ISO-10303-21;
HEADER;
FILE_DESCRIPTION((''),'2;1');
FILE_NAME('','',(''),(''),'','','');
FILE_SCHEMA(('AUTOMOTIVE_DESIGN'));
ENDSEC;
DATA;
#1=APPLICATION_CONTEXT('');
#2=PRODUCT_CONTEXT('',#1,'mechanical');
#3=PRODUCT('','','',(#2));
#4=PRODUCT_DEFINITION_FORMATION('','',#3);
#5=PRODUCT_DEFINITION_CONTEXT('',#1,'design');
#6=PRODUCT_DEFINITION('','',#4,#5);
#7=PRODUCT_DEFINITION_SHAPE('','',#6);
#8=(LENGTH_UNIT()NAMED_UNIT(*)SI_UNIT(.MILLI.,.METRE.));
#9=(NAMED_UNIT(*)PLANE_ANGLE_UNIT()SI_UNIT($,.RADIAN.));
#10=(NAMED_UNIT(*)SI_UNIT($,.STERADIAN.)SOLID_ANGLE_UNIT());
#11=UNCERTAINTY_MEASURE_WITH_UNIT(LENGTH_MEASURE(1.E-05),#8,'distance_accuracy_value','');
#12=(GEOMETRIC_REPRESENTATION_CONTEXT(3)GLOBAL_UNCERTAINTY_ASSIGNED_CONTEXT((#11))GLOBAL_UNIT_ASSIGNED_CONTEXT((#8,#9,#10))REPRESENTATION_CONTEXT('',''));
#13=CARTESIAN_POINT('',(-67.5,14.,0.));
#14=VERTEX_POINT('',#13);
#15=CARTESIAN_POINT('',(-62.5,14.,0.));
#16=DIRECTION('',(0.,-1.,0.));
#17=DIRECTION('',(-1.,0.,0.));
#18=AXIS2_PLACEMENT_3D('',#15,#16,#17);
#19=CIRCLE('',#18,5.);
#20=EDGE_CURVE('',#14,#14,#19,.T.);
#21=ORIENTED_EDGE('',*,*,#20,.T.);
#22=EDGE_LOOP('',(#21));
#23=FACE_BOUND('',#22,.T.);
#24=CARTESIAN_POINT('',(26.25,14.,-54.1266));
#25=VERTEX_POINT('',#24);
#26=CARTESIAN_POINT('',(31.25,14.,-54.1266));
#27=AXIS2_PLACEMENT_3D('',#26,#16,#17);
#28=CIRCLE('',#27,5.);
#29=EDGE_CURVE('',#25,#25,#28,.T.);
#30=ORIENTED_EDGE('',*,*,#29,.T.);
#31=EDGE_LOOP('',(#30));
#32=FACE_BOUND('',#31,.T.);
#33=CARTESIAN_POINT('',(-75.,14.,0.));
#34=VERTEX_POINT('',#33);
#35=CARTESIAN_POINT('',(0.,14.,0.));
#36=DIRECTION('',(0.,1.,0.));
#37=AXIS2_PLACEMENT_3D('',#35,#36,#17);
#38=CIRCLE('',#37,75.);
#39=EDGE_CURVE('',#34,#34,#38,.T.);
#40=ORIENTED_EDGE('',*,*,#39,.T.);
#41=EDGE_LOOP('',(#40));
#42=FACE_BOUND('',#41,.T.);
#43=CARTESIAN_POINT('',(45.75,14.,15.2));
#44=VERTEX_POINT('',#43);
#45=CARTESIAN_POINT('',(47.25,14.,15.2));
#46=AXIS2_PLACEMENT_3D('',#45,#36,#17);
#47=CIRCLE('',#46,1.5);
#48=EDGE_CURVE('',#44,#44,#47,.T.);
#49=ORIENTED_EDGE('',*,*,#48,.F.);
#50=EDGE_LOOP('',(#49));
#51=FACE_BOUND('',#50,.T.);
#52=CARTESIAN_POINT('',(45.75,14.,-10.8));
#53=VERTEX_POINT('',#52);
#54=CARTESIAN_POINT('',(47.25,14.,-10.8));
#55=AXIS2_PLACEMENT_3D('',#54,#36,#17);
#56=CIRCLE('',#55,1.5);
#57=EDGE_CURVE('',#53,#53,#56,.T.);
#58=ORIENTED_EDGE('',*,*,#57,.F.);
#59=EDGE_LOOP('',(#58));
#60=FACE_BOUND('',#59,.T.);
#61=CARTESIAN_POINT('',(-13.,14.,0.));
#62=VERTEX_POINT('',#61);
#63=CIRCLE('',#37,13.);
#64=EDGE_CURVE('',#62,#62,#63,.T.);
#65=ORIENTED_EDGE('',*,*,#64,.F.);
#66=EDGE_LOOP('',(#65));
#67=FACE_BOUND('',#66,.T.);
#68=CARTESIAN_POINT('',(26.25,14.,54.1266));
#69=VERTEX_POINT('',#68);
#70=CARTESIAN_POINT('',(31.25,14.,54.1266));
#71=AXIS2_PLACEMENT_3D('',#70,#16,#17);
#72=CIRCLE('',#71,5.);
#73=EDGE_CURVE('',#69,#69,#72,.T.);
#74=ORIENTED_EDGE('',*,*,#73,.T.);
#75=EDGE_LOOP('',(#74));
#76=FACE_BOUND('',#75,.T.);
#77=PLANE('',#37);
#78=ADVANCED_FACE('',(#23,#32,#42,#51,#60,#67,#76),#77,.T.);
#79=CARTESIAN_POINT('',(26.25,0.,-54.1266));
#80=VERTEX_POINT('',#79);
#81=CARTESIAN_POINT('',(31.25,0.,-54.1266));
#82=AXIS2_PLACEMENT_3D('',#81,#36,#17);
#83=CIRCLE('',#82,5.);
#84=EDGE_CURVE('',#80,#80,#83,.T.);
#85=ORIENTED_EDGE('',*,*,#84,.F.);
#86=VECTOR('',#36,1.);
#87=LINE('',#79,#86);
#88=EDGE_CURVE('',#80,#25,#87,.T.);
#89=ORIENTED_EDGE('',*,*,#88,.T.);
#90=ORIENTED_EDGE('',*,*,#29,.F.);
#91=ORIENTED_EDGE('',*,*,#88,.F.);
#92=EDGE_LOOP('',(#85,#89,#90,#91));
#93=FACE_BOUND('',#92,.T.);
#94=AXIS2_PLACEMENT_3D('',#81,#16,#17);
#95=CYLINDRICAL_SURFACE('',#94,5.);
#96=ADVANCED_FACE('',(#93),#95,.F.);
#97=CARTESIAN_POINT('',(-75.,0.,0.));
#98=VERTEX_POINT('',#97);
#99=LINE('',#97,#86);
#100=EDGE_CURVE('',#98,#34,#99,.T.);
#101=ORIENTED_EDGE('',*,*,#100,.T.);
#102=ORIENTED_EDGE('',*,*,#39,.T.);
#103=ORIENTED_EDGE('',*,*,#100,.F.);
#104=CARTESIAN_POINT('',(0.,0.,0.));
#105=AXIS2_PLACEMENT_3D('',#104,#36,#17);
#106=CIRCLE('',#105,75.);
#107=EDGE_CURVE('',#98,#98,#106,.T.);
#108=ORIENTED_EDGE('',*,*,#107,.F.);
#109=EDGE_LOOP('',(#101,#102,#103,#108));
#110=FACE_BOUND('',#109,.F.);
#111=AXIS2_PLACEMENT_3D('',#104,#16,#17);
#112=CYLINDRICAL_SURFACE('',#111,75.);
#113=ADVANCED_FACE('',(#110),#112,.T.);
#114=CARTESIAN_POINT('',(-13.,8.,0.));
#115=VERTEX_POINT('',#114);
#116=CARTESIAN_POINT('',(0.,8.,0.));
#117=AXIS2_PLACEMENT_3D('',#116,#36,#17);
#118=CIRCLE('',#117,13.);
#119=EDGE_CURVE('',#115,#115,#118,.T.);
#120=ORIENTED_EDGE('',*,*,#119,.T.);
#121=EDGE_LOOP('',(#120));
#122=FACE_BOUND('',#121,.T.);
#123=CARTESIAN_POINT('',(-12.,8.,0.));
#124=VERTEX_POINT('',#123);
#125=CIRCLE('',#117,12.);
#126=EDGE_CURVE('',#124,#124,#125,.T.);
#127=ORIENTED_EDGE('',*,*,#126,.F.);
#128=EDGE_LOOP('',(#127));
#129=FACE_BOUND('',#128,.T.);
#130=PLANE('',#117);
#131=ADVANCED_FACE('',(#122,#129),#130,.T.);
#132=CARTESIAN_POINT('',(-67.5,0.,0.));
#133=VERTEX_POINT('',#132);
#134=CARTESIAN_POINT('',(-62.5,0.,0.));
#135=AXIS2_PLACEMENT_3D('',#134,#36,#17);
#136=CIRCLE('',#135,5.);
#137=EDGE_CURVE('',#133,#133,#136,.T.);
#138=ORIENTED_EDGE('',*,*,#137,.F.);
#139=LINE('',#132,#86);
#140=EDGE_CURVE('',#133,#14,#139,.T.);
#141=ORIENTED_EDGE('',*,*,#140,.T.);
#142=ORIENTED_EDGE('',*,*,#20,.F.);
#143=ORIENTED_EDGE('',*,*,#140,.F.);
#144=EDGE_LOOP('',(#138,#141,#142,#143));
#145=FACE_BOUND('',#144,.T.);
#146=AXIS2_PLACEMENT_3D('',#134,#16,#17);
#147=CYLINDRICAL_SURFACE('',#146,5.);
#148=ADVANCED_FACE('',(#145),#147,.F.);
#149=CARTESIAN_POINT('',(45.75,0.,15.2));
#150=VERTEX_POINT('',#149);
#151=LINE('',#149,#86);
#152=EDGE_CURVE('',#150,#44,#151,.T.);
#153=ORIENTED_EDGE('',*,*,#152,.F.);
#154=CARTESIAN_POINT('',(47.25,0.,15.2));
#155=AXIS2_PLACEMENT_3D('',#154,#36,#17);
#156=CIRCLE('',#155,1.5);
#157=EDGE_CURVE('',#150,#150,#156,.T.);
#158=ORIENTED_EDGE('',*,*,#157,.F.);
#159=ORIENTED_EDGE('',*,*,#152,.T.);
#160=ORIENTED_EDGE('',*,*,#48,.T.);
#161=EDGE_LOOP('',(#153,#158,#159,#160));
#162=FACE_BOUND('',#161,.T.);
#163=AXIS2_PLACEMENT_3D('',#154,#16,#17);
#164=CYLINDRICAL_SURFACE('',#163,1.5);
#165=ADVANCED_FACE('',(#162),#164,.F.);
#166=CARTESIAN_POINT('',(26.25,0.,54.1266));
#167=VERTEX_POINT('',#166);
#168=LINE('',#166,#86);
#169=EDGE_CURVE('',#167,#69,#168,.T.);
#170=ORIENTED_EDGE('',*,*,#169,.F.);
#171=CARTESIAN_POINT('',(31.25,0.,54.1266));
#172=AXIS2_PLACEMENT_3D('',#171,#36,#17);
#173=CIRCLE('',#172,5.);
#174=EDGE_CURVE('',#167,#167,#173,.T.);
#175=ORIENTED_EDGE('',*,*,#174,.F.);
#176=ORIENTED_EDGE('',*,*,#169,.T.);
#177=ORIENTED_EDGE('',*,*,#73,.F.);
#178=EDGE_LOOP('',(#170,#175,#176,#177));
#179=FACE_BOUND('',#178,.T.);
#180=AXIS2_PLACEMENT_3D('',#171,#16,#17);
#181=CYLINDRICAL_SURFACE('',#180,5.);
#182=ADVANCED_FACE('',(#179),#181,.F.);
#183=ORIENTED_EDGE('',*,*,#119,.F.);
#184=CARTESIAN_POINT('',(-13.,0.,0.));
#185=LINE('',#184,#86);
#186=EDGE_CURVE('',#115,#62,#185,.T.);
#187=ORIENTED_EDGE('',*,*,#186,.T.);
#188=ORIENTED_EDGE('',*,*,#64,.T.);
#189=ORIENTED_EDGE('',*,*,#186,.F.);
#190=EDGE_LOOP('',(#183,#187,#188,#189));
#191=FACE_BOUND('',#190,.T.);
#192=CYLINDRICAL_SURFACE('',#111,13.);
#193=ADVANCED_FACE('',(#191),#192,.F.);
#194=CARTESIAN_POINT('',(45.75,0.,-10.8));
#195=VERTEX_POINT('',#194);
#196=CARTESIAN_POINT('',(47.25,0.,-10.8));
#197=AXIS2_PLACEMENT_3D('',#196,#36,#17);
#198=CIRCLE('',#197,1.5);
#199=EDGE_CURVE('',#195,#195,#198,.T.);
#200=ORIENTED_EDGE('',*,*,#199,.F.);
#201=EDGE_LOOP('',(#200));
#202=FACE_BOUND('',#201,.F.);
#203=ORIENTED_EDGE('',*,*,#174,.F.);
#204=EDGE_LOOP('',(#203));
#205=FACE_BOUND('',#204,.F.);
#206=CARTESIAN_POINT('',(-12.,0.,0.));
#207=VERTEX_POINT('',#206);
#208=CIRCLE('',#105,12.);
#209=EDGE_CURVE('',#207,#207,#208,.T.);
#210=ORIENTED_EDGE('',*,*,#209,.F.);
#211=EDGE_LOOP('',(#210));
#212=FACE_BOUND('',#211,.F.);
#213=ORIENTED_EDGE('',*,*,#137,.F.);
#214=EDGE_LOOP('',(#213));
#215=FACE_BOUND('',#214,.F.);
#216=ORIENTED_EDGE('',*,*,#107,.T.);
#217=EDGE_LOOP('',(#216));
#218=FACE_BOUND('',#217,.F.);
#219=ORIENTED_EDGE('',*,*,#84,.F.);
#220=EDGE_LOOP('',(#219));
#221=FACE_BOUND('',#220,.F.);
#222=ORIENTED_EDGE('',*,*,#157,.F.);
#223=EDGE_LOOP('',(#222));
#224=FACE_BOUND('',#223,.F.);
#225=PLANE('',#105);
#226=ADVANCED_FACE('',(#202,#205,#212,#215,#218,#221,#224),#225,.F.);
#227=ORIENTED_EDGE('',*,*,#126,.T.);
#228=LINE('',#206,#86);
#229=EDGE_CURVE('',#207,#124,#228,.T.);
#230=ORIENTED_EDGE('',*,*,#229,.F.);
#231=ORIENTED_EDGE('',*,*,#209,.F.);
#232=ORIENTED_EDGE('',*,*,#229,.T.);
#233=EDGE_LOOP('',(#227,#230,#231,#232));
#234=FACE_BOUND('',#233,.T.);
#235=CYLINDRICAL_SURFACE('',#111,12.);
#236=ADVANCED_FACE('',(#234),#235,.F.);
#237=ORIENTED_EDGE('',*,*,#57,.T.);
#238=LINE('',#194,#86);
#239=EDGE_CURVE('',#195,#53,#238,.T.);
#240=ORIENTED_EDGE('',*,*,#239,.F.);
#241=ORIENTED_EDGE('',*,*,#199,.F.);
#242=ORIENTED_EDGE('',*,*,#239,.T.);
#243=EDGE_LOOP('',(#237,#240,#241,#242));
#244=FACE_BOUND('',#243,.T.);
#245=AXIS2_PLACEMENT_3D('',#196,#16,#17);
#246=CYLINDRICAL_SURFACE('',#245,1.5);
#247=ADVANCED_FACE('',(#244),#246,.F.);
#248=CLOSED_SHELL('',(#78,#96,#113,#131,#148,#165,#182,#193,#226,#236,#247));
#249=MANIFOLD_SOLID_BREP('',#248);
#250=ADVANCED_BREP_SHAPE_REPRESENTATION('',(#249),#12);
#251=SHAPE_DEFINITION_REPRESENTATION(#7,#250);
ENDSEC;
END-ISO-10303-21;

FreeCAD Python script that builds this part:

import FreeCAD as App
import Part
import Sketcher

V = App.Vector
Q = App.Units.Quantity

doc = App.newDocument("Part")
body = doc.addObject("PartDesign::Body", "Body")

# Sketch on XZ plane
sketch1 = body.newObject("Sketcher::SketchObject", "Sketch")
sketch1.AttachmentSupport = (doc.getObject("XZ_Plane"), [""])
sketch1.MapMode = "FlatFace"
sketch1.addGeometry(Part.Circle(V(0, 0, 0), V(0, 0, 1), 75), False)
sketch1.addGeometry(Part.Circle(V(31.25, 54.1266, 0), V(0, 0, 1), 5), False)
sketch1.addGeometry(Part.Circle(V(31.25, -54.1266, 0), V(0, 0, 1), 5), False)
sketch1.addGeometry(Part.Circle(V(-62.5, 0, 0), V(0, 0, 1), 5), False)
sketch1.addGeometry(Part.Circle(V(47.25, -10.8, 0), V(0, 0, 1), 1.5), False)
sketch1.addGeometry(Part.Circle(V(47.25, 15.2, 0), V(0, 0, 1), 1.5), False)
sketch1.addGeometry(Part.Circle(V(0, 0, 0), V(0, 0, 1), 13), False)
sketch1.addConstraint(Sketcher.Constraint("Coincident", 0, 3, -1, 1))
sketch1.addConstraint(Sketcher.Constraint("Coincident", 6, 3, -1, 1))
sketch1.addConstraint(Sketcher.Constraint("Equal", 1, 2))
sketch1.addConstraint(Sketcher.Constraint("Equal", 2, 3))
sketch1.addConstraint(Sketcher.Constraint("Equal", 4, 5))
sketch1.addConstraint(Sketcher.Constraint("Symmetric", 1, 3, 2, 3, -1))
sketch1.addConstraint(Sketcher.Constraint("PointOnObject", 3, 3, -1))
sketch1.addConstraint(Sketcher.Constraint("Vertical", 4, 3, 5, 3))
sketch1.addConstraint(Sketcher.Constraint("Diameter", 0, Q("150 mm")))
sketch1.addConstraint(Sketcher.Constraint("Diameter", 1, Q("10 mm")))
sketch1.addConstraint(Sketcher.Constraint("Diameter", 4, Q("3 mm")))
sketch1.addConstraint(Sketcher.Constraint("Diameter", 6, Q("26 mm")))
sketch1.addConstraint(Sketcher.Constraint("DistanceX", 2, 3, 4, 3, Q("16 mm")))
sketch1.addConstraint(Sketcher.Constraint("DistanceY", 4, 3, 5, 3, Q("26 mm")))
sketch1.addConstraint(Sketcher.Constraint("DistanceX", 3, 3, -1, 1, Q("62.5 mm")))
sketch1.addConstraint(Sketcher.Constraint("DistanceY", 4, 3, -1, 1, Q("10.8 mm")))
sketch1.addConstraint(Sketcher.Constraint("DistanceX", -1, 1, 1, 3, Q("31.25 mm")))
sketch1.addConstraint(Sketcher.Constraint("DistanceY", -1, 1, 1, 3, Q("54.1266 mm")))
pad1 = body.newObject("PartDesign::Pad", "Pad")
pad1.Profile = sketch1
pad1.Length = 14
pad1.Reversed = True

# Sketch on XZ plane
sketch2 = body.newObject("Sketcher::SketchObject", "Sketch001")
sketch2.AttachmentSupport = (doc.getObject("XZ_Plane"), [""])
sketch2.MapMode = "FlatFace"
sketch2.addGeometry(Part.Circle(V(0, 0, 0), V(0, 0, 1), 13), False)
sketch2.addGeometry(Part.Circle(V(0, 0, 0), V(0, 0, 1), 12), False)
sketch2.addConstraint(Sketcher.Constraint("Coincident", 0, 3, -1, 1))
sketch2.addConstraint(Sketcher.Constraint("Coincident", 1, 3, -1, 1))
sketch2.addConstraint(Sketcher.Constraint("Diameter", 0, Q("26 mm")))
sketch2.addConstraint(Sketcher.Constraint("Diameter", 1, Q("24 mm")))
pad2 = body.newObject("PartDesign::Pad", "Pad001")
pad2.Profile = sketch2
pad2.Length = 8
pad2.Reversed = True

doc.recompute()
